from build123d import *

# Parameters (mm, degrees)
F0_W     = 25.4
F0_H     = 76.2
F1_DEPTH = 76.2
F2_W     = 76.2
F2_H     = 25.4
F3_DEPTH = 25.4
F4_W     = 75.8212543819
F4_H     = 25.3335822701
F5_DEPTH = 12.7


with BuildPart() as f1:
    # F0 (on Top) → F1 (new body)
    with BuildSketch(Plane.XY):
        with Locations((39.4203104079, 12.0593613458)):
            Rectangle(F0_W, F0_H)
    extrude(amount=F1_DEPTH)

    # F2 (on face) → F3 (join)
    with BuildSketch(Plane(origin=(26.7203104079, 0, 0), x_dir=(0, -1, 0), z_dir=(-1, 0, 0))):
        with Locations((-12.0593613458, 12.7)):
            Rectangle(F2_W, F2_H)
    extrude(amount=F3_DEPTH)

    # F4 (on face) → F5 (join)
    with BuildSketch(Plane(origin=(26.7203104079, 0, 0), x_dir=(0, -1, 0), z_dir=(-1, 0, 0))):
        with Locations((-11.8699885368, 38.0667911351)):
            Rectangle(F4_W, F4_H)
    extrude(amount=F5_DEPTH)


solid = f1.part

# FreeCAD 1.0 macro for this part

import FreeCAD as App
import Part
import Sketcher
Q = App.Units.Quantity


def add_polygon(sketch, points):
    """Adds a closed chain of lines whose ends are joined by coincident constraints."""
    first, n = sketch.GeometryCount, len(points)
    for a, b in zip(points, points[1:] + points[:1]):
        sketch.addGeometry(Part.LineSegment(App.Vector(*a, 0), App.Vector(*b, 0)), False)
    for i in range(n):
        sketch.addConstraint(Sketcher.Constraint("Coincident", first + i, 2, first + (i + 1) % n, 1))

doc = App.newDocument("Part")
body = doc.addObject("PartDesign::Body", "Body")

# Sketch on XY plane
sketch1 = body.newObject("Sketcher::SketchObject", "Sketch")
sketch1.AttachmentSupport = (doc.getObject("XY_Plane"), [""])
sketch1.MapMode = "FlatFace"
add_polygon(sketch1, [(26.72031, 50.159361), (26.72031, -26.040639), (52.12031, -26.040639), (52.12031, 50.159361)])  # lines 0-3
sketch1.addConstraint([
    Sketcher.Constraint("Vertical", 0),
    Sketcher.Constraint("Horizontal", 1),
    Sketcher.Constraint("Vertical", 2),
    Sketcher.Constraint("Horizontal", 3),
    Sketcher.Constraint("DistanceX", 1, 1, 1, 2, Q("1 in")),
    Sketcher.Constraint("DistanceY", 0, 2, 0, 1, Q("3 in")),
    Sketcher.Constraint("DistanceX", -1, 1, 0, 2, Q("26.72031 mm")),
    Sketcher.Constraint("DistanceY", 0, 2, -1, 1, Q("26.040639 mm")),
])
pad1 = body.newObject("PartDesign::Pad", "Pad")
pad1.Profile = sketch1
pad1.Length = Q("3 in")

# Sketch on YZ plane
sketch2 = body.newObject("Sketcher::SketchObject", "Sketch001")
sketch2.AttachmentSupport = (doc.getObject("YZ_Plane"), [""])
sketch2.MapMode = "FlatFace"
sketch2.AttachmentOffset = App.Placement(App.Vector(0, 0, 26.72031), App.Rotation())
add_polygon(sketch2, [(50.159361, 25.4), (50.159361, 0), (-26.040639, 0), (-26.040639, 25.4)])  # lines 0-3
sketch2.addConstraint([
    Sketcher.Constraint("Vertical", 0),
    Sketcher.Constraint("Horizontal", 1),
    Sketcher.Constraint("Vertical", 2),
    Sketcher.Constraint("Horizontal", 3),
    Sketcher.Constraint("PointOnObject", 0, 2, -1),
    Sketcher.Constraint("DistanceX", 1, 2, 1, 1, Q("3 in")),
    Sketcher.Constraint("DistanceY", 0, 2, 0, 1, Q("1 in")),
    Sketcher.Constraint("DistanceX", -1, 1, 0, 2, Q("50.159361 mm")),
])
pad2 = body.newObject("PartDesign::Pad", "Pad001")
pad2.Profile = sketch2
pad2.Length = Q("1 in")
pad2.Reversed = True

# Sketch on YZ plane
sketch3 = body.newObject("Sketcher::SketchObject", "Sketch002")
sketch3.AttachmentSupport = (doc.getObject("YZ_Plane"), [""])
sketch3.MapMode = "FlatFace"
sketch3.AttachmentOffset = App.Placement(App.Vector(0, 0, 26.72031), App.Rotation())
add_polygon(sketch3, [(49.780616, 50.733582), (49.780616, 25.4), (-26.040639, 25.4), (-26.040639, 50.733582)])  # lines 0-3
sketch3.addConstraint([
    Sketcher.Constraint("Vertical", 0),
    Sketcher.Constraint("Horizontal", 1),
    Sketcher.Constraint("Vertical", 2),
    Sketcher.Constraint("Horizontal", 3),
    Sketcher.Constraint("DistanceY", -1, 1, 0, 2, Q("1 in")),
    Sketcher.Constraint("DistanceX", 1, 2, 1, 1, Q("75.821254 mm")),
    Sketcher.Constraint("DistanceY", 0, 2, 0, 1, Q("25.333582 mm")),
    Sketcher.Constraint("DistanceX", 1, 2, -1, 1, Q("26.040639 mm")),
])
pad3 = body.newObject("PartDesign::Pad", "Pad002")
pad3.Profile = sketch3
pad3.Length = Q("0.5 in")
pad3.Reversed = True

doc.recompute()
